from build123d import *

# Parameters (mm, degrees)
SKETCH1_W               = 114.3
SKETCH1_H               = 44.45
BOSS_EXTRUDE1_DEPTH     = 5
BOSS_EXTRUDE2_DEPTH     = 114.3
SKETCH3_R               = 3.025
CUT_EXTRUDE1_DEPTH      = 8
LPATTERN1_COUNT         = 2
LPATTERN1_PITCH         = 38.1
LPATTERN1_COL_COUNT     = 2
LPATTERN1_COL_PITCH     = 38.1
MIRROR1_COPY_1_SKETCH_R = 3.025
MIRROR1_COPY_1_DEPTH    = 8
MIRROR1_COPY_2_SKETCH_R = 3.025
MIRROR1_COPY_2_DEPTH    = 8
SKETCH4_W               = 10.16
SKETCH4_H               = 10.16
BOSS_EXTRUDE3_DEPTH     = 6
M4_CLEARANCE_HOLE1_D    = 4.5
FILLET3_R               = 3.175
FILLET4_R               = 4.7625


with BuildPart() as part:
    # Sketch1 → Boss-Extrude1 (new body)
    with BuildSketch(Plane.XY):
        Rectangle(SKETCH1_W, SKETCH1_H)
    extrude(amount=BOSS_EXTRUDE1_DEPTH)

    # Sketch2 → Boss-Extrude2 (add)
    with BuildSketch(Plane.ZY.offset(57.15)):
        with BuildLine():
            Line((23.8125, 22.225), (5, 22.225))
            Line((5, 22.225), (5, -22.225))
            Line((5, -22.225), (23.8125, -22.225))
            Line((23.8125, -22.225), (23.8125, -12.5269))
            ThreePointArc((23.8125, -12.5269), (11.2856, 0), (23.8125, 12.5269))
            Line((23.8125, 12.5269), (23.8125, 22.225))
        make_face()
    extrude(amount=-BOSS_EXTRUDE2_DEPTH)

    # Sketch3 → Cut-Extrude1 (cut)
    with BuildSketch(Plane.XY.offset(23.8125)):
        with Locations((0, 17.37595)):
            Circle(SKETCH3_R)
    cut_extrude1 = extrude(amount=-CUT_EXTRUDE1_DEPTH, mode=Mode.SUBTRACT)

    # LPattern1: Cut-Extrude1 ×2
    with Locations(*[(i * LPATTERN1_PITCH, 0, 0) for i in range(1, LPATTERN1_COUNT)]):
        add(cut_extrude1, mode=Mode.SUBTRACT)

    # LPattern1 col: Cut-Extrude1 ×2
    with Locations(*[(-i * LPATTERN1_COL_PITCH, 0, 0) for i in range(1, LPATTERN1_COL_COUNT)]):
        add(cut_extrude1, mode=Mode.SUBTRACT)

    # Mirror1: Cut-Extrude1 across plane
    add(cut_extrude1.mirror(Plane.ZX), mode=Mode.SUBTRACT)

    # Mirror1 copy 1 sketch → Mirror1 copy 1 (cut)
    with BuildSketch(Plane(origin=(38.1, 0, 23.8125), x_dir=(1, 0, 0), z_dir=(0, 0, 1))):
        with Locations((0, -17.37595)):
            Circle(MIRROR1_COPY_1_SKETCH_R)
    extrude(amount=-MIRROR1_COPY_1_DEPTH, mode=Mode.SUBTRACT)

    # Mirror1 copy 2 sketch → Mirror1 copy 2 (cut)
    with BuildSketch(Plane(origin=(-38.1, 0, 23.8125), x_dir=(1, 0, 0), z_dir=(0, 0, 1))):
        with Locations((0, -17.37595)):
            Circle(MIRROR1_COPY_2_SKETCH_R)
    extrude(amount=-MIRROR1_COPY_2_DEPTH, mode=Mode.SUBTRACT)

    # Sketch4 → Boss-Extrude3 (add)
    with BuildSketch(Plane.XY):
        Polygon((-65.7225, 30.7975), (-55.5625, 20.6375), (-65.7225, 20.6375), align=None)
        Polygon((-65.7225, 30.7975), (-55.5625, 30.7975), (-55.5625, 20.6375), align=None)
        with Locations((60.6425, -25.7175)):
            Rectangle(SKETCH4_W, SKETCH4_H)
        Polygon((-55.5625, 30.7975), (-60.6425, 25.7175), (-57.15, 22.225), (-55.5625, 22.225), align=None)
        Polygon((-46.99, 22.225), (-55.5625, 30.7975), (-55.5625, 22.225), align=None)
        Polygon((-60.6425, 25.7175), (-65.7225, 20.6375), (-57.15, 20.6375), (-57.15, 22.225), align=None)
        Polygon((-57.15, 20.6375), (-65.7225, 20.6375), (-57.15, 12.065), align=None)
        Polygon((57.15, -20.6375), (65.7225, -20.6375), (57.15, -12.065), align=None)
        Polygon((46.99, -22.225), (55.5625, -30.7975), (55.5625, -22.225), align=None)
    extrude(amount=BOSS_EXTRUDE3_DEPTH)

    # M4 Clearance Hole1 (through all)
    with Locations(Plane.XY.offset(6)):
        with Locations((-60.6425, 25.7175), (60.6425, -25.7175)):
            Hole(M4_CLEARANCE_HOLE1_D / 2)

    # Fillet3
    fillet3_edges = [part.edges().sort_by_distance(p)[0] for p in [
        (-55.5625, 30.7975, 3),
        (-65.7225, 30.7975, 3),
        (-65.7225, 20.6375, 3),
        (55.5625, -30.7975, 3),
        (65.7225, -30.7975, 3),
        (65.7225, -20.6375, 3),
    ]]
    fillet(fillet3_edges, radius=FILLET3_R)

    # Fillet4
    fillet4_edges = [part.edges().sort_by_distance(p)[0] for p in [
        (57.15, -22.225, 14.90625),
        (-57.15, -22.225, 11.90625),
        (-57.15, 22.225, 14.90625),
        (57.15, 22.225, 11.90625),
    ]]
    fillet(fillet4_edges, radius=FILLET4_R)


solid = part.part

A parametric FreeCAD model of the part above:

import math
import FreeCAD as App
import Part
import Sketcher
from FreeCAD import Vector
Q = App.Units.Quantity


def edges_at(feature, points):
    """Names of the edges that pass closest to the given points."""
    edges = feature.Shape.Edges
    near = lambda p: min(range(len(edges)), key=lambda i: edges[i].distToShape(Part.Vertex(*p))[0])
    return sorted({f"Edge{near(p) + 1}" for p in points})

doc = App.newDocument("Part")
body = doc.addObject("PartDesign::Body", "Body")

sketch1 = doc.addObject("Sketcher::SketchObject", "Sketch")
body.addObject(sketch1)
sketch1.AttachmentSupport = (doc.XY_Plane, [""])
sketch1.MapMode = "FlatFace"
sketch1.addGeometry(Part.LineSegment(Vector(-57, 22, 0), Vector(-57, -22, 0)), False)
sketch1.addGeometry(Part.LineSegment(Vector(-57, -22, 0), Vector(57, -22, 0)), False)
sketch1.addGeometry(Part.LineSegment(Vector(57, -22, 0), Vector(57, 22, 0)), False)
sketch1.addGeometry(Part.LineSegment(Vector(57, 22, 0), Vector(-57, 22, 0)), False)
sketch1.addConstraint(Sketcher.Constraint("Coincident", 0, 2, 1, 1))
sketch1.addConstraint(Sketcher.Constraint("Coincident", 1, 2, 2, 1))
sketch1.addConstraint(Sketcher.Constraint("Coincident", 2, 2, 3, 1))
sketch1.addConstraint(Sketcher.Constraint("Coincident", 3, 2, 0, 1))
sketch1.addConstraint(Sketcher.Constraint("Vertical", 0))
sketch1.addConstraint(Sketcher.Constraint("Horizontal", 1))
sketch1.addConstraint(Sketcher.Constraint("Vertical", 2))
sketch1.addConstraint(Sketcher.Constraint("Horizontal", 3))
sketch1.addConstraint(Sketcher.Constraint("Symmetric", 0, 2, 2, 2, -1, 1))
sketch1.addConstraint(Sketcher.Constraint("DistanceX", 1, 1, 1, 2, Q("4.5 in")))
sketch1.addConstraint(Sketcher.Constraint("DistanceY", 0, 2, 0, 1, Q("1.75 in")))
pad1 = doc.addObject("PartDesign::Pad", "Pad")
body.addObject(pad1)
pad1.Profile = sketch1
pad1.Length = 5

sketch2 = doc.addObject("Sketcher::SketchObject", "Sketch001")
body.addObject(sketch2)
sketch2.AttachmentSupport = (doc.YZ_Plane, [""])
sketch2.MapMode = "FlatFace"
sketch2.AttachmentOffset = App.Placement(Vector(0, 0, -2.25 * 25.4), App.Rotation())
sketch2.addGeometry(Part.LineSegment(Vector(22, 24, 0), Vector(22, 5, 0)), False)
sketch2.addGeometry(Part.LineSegment(Vector(22, 5, 0), Vector(-22, 5, 0)), False)
sketch2.addGeometry(Part.LineSegment(Vector(-22, 5, 0), Vector(-22, 24, 0)), False)
sketch2.addGeometry(Part.LineSegment(Vector(-22, 24, 0), Vector(-13, 24, 0)), False)
sketch2.addGeometry(Part.ArcOfCircle(Part.Circle(Vector(0, 24, 0), Vector(0, 0, 1), 13), math.radians(180), math.radians(360)), False)
sketch2.addGeometry(Part.LineSegment(Vector(13, 24, 0), Vector(22, 24, 0)), False)
sketch2.addConstraint(Sketcher.Constraint("Coincident", 0, 2, 1, 1))
sketch2.addConstraint(Sketcher.Constraint("Coincident", 1, 2, 2, 1))
sketch2.addConstraint(Sketcher.Constraint("Coincident", 2, 2, 3, 1))
sketch2.addConstraint(Sketcher.Constraint("Coincident", 3, 2, 4, 1))
sketch2.addConstraint(Sketcher.Constraint("Coincident", 4, 2, 5, 1))
sketch2.addConstraint(Sketcher.Constraint("Coincident", 5, 2, 0, 1))
sketch2.addConstraint(Sketcher.Constraint("Vertical", 0))
sketch2.addConstraint(Sketcher.Constraint("Horizontal", 1))
sketch2.addConstraint(Sketcher.Constraint("Vertical", 2))
sketch2.addConstraint(Sketcher.Constraint("Horizontal", 3))
sketch2.addConstraint(Sketcher.Constraint("Horizontal", 5))
sketch2.addConstraint(Sketcher.Constraint("Symmetric", 3, 2, 4, 2, -2))
sketch2.addConstraint(Sketcher.Constraint("Horizontal", 4, 3, 2, 2))
sketch2.addConstraint(Sketcher.Constraint("Equal", 3, 5))
sketch2.addConstraint(Sketcher.Constraint("DistanceX", 1, 2, 1, 1, Q("1.75 in")))
sketch2.addConstraint(Sketcher.Constraint("Radius", 4, Q("12.5269 mm")))
sketch2.addConstraint(Sketcher.Constraint("DistanceY", -1, 1, 4, 3, Q("0.9375 in")))
sketch2.addConstraint(Sketcher.Constraint("DistanceY", 0, 2, 0, 1, Q("18.8125 mm")))
pad2 = doc.addObject("PartDesign::Pad", "Pad001")
body.addObject(pad2)
pad2.Profile = sketch2
pad2.Length = Q("4.5 in")

sketch3 = doc.addObject("Sketcher::SketchObject", "Sketch002")
body.addObject(sketch3)
sketch3.AttachmentSupport = (doc.XY_Plane, [""])
sketch3.MapMode = "FlatFace"
sketch3.AttachmentOffset = App.Placement(Vector(0, 0, 0.9375 * 25.4), App.Rotation())
sketch3.addGeometry(Part.Circle(Vector(0, 17.4, 0), Vector(0, 0, 1), 3), False)
sketch3.addConstraint(Sketcher.Constraint("PointOnObject", 0, 3, -2))
sketch3.addConstraint(Sketcher.Constraint("Diameter", 0, Q("6.05 mm")))
sketch3.addConstraint(Sketcher.Constraint("DistanceY", -1, 1, 0, 3, Q("17.37595 mm")))
pocket1 = doc.addObject("PartDesign::Pocket", "Pocket")
body.addObject(pocket1)
pocket1.Profile = sketch3
pocket1.Length = 8
doc.recompute()

linearpattern = doc.addObject("PartDesign::LinearPattern", "LinearPattern")
body.addObject(linearpattern)
linearpattern.Originals = [pocket1]
linearpattern.Direction = (doc.X_Axis, [""])
linearpattern.Mode = "offset"
linearpattern.Offset = Q("1.5 in")
linearpattern.Occurrences = 2
body.Tip = linearpattern
doc.recompute()

linearpattern2 = doc.addObject("PartDesign::LinearPattern", "LinearPattern001")
body.addObject(linearpattern2)
linearpattern2.Originals = [pocket1]
linearpattern2.Direction = (doc.X_Axis, [""])
linearpattern2.Mode = "offset"
linearpattern2.Offset = Q("1.5 in")
linearpattern2.Occurrences = 2
linearpattern2.Reversed = True
body.Tip = linearpattern2
doc.recompute()

mirrored = doc.addObject("PartDesign::Mirrored", "Mirrored")
body.addObject(mirrored)
mirrored.Originals = [pocket1]
mirrored.MirrorPlane = (doc.XZ_Plane, [""])
body.Tip = mirrored

sketch4 = doc.addObject("Sketcher::SketchObject", "Sketch003")
body.addObject(sketch4)
sketch4.AttachmentSupport = (doc.XY_Plane, [""])
sketch4.MapMode = "FlatFace"
sketch4.AttachmentOffset = App.Placement(Vector(0, 0, 0.9375 * 25.4), App.Rotation())
sketch4.addGeometry(Part.Circle(Vector(38.1, -17.4, 0), Vector(0, 0, 1), 3), False)
sketch4.addConstraint(Sketcher.Constraint("DistanceX", -1, 1, 0, 3, Q("1.5 in")))
sketch4.addConstraint(Sketcher.Constraint("Diameter", 0, Q("6.05 mm")))
sketch4.addConstraint(Sketcher.Constraint("DistanceY", 0, 3, -1, 1, Q("17.37595 mm")))
pocket2 = doc.addObject("PartDesign::Pocket", "Pocket001")
body.addObject(pocket2)
pocket2.Profile = sketch4
pocket2.Length = 8

sketch5 = doc.addObject("Sketcher::SketchObject", "Sketch004")
body.addObject(sketch5)
sketch5.AttachmentSupport = (doc.XY_Plane, [""])
sketch5.MapMode = "FlatFace"
sketch5.AttachmentOffset = App.Placement(Vector(0, 0, 0.9375 * 25.4), App.Rotation())
sketch5.addGeometry(Part.Circle(Vector(-38.1, -17.4, 0), Vector(0, 0, 1), 3), False)
sketch5.addConstraint(Sketcher.Constraint("DistanceX", 0, 3, -1, 1, Q("1.5 in")))
sketch5.addConstraint(Sketcher.Constraint("Diameter", 0, Q("6.05 mm")))
sketch5.addConstraint(Sketcher.Constraint("DistanceY", 0, 3, -1, 1, Q("17.37595 mm")))
pocket3 = doc.addObject("PartDesign::Pocket", "Pocket002")
body.addObject(pocket3)
pocket3.Profile = sketch5
pocket3.Length = 8

sketch6 = doc.addObject("Sketcher::SketchObject", "Sketch005")
body.addObject(sketch6)
sketch6.AttachmentSupport = (doc.XY_Plane, [""])
sketch6.MapMode = "FlatFace"
sketch6.addGeometry(Part.LineSegment(Vector(-55.6, 20.6, 0), Vector(-55.6, 22.2, 0)), False)
sketch6.addGeometry(Part.LineSegment(Vector(-55.6, 22.2, 0), Vector(-47, 22.2, 0)), False)
sketch6.addGeometry(Part.LineSegment(Vector(-47, 22.2, 0), Vector(-55.6, 30.8, 0)), False)
sketch6.addGeometry(Part.LineSegment(Vector(-55.6, 30.8, 0), Vector(-65.7, 30.8, 0)), False)
sketch6.addGeometry(Part.LineSegment(Vector(-65.7, 30.8, 0), Vector(-65.7, 20.6, 0)), False)
sketch6.addGeometry(Part.LineSegment(Vector(-65.7, 20.6, 0), Vector(-57.1, 12.1, 0)), False)
sketch6.addGeometry(Part.LineSegment(Vector(-57.1, 12.1, 0), Vector(-57.1, 20.6, 0)), False)
sketch6.addGeometry(Part.LineSegment(Vector(-57.1, 20.6, 0), Vector(-55.6, 20.6, 0)), False)
sketch6.addGeometry(Part.LineSegment(Vector(55.6, -20.6, 0), Vector(55.6, -22.2, 0)), False)
sketch6.addGeometry(Part.LineSegment(Vector(55.6, -22.2, 0), Vector(47, -22.2, 0)), False)
sketch6.addGeometry(Part.LineSegment(Vector(47, -22.2, 0), Vector(55.6, -30.8, 0)), False)
sketch6.addGeometry(Part.LineSegment(Vector(55.6, -30.8, 0), Vector(65.7, -30.8, 0)), False)
sketch6.addGeometry(Part.LineSegment(Vector(65.7, -30.8, 0), Vector(65.7, -20.6, 0)), False)
sketch6.addGeometry(Part.LineSegment(Vector(65.7, -20.6, 0), Vector(57.1, -12.1, 0)), False)
sketch6.addGeometry(Part.LineSegment(Vector(57.1, -12.1, 0), Vector(57.1, -20.6, 0)), False)
sketch6.addGeometry(Part.LineSegment(Vector(57.1, -20.6, 0), Vector(55.6, -20.6, 0)), False)
sketch6.addConstraint(Sketcher.Constraint("Coincident", 0, 2, 1, 1))
sketch6.addConstraint(Sketcher.Constraint("Coincident", 1, 2, 2, 1))
sketch6.addConstraint(Sketcher.Constraint("Coincident", 2, 2, 3, 1))
sketch6.addConstraint(Sketcher.Constraint("Coincident", 3, 2, 4, 1))
sketch6.addConstraint(Sketcher.Constraint("Coincident", 4, 2, 5, 1))
sketch6.addConstraint(Sketcher.Constraint("Coincident", 5, 2, 6, 1))
sketch6.addConstraint(Sketcher.Constraint("Coincident", 6, 2, 7, 1))
sketch6.addConstraint(Sketcher.Constraint("Coincident", 7, 2, 0, 1))
sketch6.addConstraint(Sketcher.Constraint("Coincident", 8, 2, 9, 1))
sketch6.addConstraint(Sketcher.Constraint("Coincident", 9, 2, 10, 1))
sketch6.addConstraint(Sketcher.Constraint("Coincident", 10, 2, 11, 1))
sketch6.addConstraint(Sketcher.Constraint("Coincident", 11, 2, 12, 1))
sketch6.addConstraint(Sketcher.Constraint("Coincident", 12, 2, 13, 1))
sketch6.addConstraint(Sketcher.Constraint("Coincident", 13, 2, 14, 1))
sketch6.addConstraint(Sketcher.Constraint("Coincident", 14, 2, 15, 1))
sketch6.addConstraint(Sketcher.Constraint("Coincident", 15, 2, 8, 1))
sketch6.addConstraint(Sketcher.Constraint("Vertical", 0))
sketch6.addConstraint(Sketcher.Constraint("Horizontal", 1))
sketch6.addConstraint(Sketcher.Constraint("Horizontal", 3))
sketch6.addConstraint(Sketcher.Constraint("Vertical", 4))
sketch6.addConstraint(Sketcher.Constraint("Vertical", 6))
sketch6.addConstraint(Sketcher.Constraint("Horizontal", 7))
sketch6.addConstraint(Sketcher.Constraint("Vertical", 8))
sketch6.addConstraint(Sketcher.Constraint("Horizontal", 9))
sketch6.addConstraint(Sketcher.Constraint("Horizontal", 11))
sketch6.addConstraint(Sketcher.Constraint("Vertical", 12))
sketch6.addConstraint(Sketcher.Constraint("Vertical", 14))
sketch6.addConstraint(Sketcher.Constraint("Horizontal", 15))
sketch6.addConstraint(Sketcher.Constraint("Symmetric", 0, 2, 8, 2, -1, 1))
sketch6.addConstraint(Sketcher.Constraint("Symmetric", 2, 2, 10, 2, -1, 1))
sketch6.addConstraint(Sketcher.Constraint("Symmetric", 4, 2, 12, 2, -1, 1))
sketch6.addConstraint(Sketcher.Constraint("Symmetric", 5, 2, 13, 2, -1, 1))
sketch6.addConstraint(Sketcher.Constraint("Parallel", 2, 5))
sketch6.addConstraint(Sketcher.Constraint("Parallel", 5, 10))
sketch6.addConstraint(Sketcher.Constraint("Horizontal", 4, 2, 6, 2))
sketch6.addConstraint(Sketcher.Constraint("Horizontal", 12, 2, 14, 2))
sketch6.addConstraint(Sketcher.Constraint("Vertical", 0, 2, 2, 2))
sketch6.addConstraint(Sketcher.Constraint("Equal", 15, 0))
sketch6.addConstraint(Sketcher.Constraint("Equal", 11, 4))
sketch6.addConstraint(Sketcher.Constraint("Equal", 9, 6))
sketch6.addConstraint(Sketcher.Constraint("DistanceX", 3, 2, 3, 1, Q("0.4 in")))
sketch6.addConstraint(Sketcher.Constraint("DistanceX", 1, 2, 9, 2, Q("3.7 in")))
sketch6.addConstraint(Sketcher.Constraint("DistanceX", 7, 1, 7, 2, Q("0.0625 in")))
sketch6.addConstraint(Sketcher.Constraint("DistanceY", 8, 2, 1, 2, Q("1.75 in")))
pad3 = doc.addObject("PartDesign::Pad", "Pad002")
body.addObject(pad3)
pad3.Profile = sketch6
pad3.Length = 6

sketch7 = doc.addObject("Sketcher::SketchObject", "Sketch006")
body.addObject(sketch7)
sketch7.AttachmentSupport = (doc.XY_Plane, [""])
sketch7.MapMode = "FlatFace"
sketch7.AttachmentOffset = App.Placement(Vector(0, 0, 6), App.Rotation())
sketch7.addGeometry(Part.Circle(Vector(-60.6, 25.7, 0), Vector(0, 0, 1), 2.2), False)
sketch7.addGeometry(Part.Circle(Vector(60.6, -25.7, 0), Vector(0, 0, 1), 2.2), False)
sketch7.addConstraint(Sketcher.Constraint("Equal", 0, 1))
sketch7.addConstraint(Sketcher.Constraint("Symmetric", 0, 3, 1, 3, -1, 1))
sketch7.addConstraint(Sketcher.Constraint("Diameter", 0, Q("4.5 mm")))
sketch7.addConstraint(Sketcher.Constraint("DistanceX", 0, 3, 1, 3, Q("4.775 in")))
sketch7.addConstraint(Sketcher.Constraint("DistanceY", 1, 3, 0, 3, Q("2.025 in")))
doc.recompute()
hole = doc.addObject("PartDesign::Hole", "Hole")
body.addObject(hole)
hole.Profile = sketch7
hole.ThreadType = "None"
hole.Diameter = 4.5
hole.DepthType = "ThroughAll"
doc.recompute()

fillet = doc.addObject("PartDesign::Fillet", "Fillet")
body.addObject(fillet)
fillet.Base = (hole, edges_at(hole, [
    (-55.562, 30.797, 3),
    (-65.722, 30.797, 3),
    (-65.722, 20.637, 3),
    (55.562, -30.797, 3),
    (65.722, -30.797, 3),
    (65.722, -20.637, 3),
]))
fillet.Radius = Q("0.125 in")
doc.recompute()

fillet2 = doc.addObject("PartDesign::Fillet", "Fillet001")
body.addObject(fillet2)
fillet2.Base = (fillet, edges_at(fillet, [
    (57.15, -22.225, 14.906),
    (-57.15, -22.225, 11.906),
    (-57.15, 22.225, 14.906),
    (57.15, 22.225, 11.906),
]))
fillet2.Radius = Q("0.1875 in")

doc.recompute()
